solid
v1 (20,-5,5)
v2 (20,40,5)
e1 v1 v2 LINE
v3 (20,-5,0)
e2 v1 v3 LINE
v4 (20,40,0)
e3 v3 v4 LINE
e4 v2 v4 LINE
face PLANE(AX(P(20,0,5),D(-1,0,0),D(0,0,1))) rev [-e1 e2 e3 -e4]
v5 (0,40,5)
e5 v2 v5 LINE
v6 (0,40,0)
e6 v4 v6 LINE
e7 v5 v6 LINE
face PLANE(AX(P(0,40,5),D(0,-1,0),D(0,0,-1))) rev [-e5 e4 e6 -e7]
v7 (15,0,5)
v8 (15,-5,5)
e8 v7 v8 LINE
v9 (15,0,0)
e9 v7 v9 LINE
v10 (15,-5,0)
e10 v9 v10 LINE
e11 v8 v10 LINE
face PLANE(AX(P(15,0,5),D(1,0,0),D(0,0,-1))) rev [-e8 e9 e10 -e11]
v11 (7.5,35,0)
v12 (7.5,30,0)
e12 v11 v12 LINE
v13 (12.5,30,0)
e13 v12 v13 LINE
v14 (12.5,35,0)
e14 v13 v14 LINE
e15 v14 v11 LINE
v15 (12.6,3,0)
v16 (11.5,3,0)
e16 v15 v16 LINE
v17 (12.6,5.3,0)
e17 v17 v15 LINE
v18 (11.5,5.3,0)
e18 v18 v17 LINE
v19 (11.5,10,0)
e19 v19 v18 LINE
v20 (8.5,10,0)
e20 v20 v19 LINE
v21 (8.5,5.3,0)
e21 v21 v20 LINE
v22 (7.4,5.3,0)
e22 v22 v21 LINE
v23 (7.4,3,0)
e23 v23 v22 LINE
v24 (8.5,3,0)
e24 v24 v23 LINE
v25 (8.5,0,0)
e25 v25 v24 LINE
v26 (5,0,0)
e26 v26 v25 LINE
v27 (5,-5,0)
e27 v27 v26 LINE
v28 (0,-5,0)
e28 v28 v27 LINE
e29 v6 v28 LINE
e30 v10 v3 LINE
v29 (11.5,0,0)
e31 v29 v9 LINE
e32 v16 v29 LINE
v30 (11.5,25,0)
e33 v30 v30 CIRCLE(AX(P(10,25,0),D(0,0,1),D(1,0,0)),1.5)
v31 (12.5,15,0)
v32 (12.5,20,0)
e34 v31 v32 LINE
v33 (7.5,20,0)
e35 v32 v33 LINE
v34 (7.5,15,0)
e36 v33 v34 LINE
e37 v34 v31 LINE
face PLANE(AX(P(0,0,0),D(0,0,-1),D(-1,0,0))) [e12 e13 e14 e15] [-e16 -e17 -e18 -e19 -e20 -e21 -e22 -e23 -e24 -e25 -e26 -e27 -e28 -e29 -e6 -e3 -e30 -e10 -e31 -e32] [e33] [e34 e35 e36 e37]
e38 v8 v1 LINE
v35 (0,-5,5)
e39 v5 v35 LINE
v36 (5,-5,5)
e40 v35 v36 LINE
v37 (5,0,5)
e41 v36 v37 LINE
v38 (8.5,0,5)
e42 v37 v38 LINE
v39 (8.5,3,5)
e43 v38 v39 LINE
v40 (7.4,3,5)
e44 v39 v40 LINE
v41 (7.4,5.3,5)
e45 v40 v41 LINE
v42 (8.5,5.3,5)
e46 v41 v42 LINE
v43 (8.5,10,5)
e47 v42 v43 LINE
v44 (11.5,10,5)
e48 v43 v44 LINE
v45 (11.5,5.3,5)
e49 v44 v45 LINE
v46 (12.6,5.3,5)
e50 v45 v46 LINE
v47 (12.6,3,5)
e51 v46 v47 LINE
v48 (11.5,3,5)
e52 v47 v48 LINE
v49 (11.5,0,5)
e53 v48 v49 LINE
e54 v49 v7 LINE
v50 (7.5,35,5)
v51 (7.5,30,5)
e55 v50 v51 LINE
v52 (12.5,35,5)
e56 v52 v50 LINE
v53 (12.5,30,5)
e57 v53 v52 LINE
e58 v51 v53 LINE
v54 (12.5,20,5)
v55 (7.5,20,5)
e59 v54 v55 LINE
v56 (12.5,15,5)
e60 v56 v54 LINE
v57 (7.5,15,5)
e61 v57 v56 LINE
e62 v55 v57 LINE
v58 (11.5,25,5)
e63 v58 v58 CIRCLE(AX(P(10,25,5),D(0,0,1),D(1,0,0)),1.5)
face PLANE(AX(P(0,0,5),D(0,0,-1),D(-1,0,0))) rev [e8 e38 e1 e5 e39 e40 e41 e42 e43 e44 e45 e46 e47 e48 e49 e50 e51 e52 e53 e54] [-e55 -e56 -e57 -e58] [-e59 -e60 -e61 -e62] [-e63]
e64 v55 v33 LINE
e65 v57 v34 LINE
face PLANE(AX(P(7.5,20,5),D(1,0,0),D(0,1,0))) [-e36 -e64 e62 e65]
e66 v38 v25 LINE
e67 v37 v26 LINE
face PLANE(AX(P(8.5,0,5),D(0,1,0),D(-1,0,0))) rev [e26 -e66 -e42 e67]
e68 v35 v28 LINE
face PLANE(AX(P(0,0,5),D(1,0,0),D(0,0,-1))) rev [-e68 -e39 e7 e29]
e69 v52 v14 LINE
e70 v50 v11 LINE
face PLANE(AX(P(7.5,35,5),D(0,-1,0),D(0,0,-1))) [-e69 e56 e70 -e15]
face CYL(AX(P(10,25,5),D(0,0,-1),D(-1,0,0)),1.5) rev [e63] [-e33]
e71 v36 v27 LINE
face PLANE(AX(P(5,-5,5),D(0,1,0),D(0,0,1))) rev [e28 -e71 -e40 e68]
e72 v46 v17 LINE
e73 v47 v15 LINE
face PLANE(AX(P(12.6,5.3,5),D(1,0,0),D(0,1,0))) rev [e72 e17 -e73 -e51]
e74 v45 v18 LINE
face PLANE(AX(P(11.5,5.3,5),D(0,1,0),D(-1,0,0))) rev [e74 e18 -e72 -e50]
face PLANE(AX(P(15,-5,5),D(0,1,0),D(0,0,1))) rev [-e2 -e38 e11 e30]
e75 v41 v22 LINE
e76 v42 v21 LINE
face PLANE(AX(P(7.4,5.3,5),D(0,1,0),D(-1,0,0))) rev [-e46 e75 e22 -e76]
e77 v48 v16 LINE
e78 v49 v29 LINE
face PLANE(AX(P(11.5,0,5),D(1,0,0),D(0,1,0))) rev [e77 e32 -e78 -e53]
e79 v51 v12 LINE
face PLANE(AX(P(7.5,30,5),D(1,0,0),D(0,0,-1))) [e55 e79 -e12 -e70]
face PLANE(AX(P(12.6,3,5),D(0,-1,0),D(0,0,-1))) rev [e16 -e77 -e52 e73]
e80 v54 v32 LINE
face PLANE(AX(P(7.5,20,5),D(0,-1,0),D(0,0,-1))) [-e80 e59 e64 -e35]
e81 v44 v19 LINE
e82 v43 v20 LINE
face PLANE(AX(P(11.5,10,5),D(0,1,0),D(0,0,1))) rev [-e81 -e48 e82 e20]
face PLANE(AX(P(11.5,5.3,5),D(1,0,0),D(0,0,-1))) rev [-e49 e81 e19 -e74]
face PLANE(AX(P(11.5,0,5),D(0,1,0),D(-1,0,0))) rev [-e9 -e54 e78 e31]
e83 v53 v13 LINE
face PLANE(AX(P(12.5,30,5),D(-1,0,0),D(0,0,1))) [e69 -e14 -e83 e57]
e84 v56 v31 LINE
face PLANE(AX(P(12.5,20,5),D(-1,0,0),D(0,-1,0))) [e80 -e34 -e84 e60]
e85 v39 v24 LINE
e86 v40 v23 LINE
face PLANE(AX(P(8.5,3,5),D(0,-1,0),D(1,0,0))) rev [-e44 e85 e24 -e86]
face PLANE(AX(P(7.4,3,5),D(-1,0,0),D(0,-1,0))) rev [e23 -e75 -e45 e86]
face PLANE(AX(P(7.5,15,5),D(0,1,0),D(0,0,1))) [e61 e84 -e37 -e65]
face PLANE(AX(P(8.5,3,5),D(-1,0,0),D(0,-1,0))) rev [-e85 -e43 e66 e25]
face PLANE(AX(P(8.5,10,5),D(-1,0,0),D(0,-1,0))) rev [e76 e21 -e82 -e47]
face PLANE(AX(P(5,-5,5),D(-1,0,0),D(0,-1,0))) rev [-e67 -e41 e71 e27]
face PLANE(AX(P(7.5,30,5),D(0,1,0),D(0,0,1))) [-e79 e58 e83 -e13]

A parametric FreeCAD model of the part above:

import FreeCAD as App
import Part
import Sketcher

V = App.Vector

doc = App.newDocument("Part")
body = doc.addObject("PartDesign::Body", "Body")

sketch1 = doc.addObject("Sketcher::SketchObject", "Sketch")
body.addObject(sketch1)
sketch1.AttachmentSupport = (doc.XY_Plane, [""])
sketch1.MapMode = "FlatFace"
sketch1.addGeometry([
    Part.LineSegment(V(0, 40, 0), V(0, -5, 0)),
    Part.LineSegment(V(0, -5, 0), V(5, -5, 0)),
    Part.LineSegment(V(5, -5, 0), V(5, 0, 0)),
    Part.LineSegment(V(5, 0, 0), V(8.5, 0, 0)),
    Part.LineSegment(V(8.5, 0, 0), V(8.5, 3, 0)),
    Part.LineSegment(V(8.5, 3, 0), V(7.4, 3, 0)),
    Part.LineSegment(V(7.4, 3, 0), V(7.4, 5.3, 0)),
    Part.LineSegment(V(7.4, 5.3, 0), V(8.5, 5.3, 0)),
    Part.LineSegment(V(8.5, 5.3, 0), V(8.5, 10, 0)),
    Part.LineSegment(V(8.5, 10, 0), V(11.5, 10, 0)),
    Part.LineSegment(V(11.5, 10, 0), V(11.5, 5.3, 0)),
    Part.LineSegment(V(11.5, 5.3, 0), V(12.6, 5.3, 0)),
    Part.LineSegment(V(12.6, 5.3, 0), V(12.6, 3, 0)),
    Part.LineSegment(V(12.6, 3, 0), V(11.5, 3, 0)),
    Part.LineSegment(V(11.5, 3, 0), V(11.5, 0, 0)),
    Part.LineSegment(V(11.5, 0, 0), V(15, 0, 0)),
    Part.LineSegment(V(15, 0, 0), V(15, -5, 0)),
    Part.LineSegment(V(15, -5, 0), V(20, -5, 0)),
    Part.LineSegment(V(20, -5, 0), V(20, 40, 0)),
    Part.LineSegment(V(20, 40, 0), V(0, 40, 0)),
    Part.LineSegment(V(7.5, 15, 0), V(7.5, 20, 0)),
    Part.LineSegment(V(7.5, 20, 0), V(12.5, 20, 0)),
    Part.LineSegment(V(12.5, 20, 0), V(12.5, 15, 0)),
    Part.LineSegment(V(12.5, 15, 0), V(7.5, 15, 0)),
    Part.Circle(V(10, 25, 0), V(0, 0, 1), 1.5),
    Part.LineSegment(V(7.5, 30, 0), V(7.5, 35, 0)),
    Part.LineSegment(V(7.5, 35, 0), V(12.5, 35, 0)),
    Part.LineSegment(V(12.5, 35, 0), V(12.5, 30, 0)),
    Part.LineSegment(V(12.5, 30, 0), V(7.5, 30, 0)),
], False)
sketch1.addConstraint([
    Sketcher.Constraint("Coincident", 0, 2, 1, 1),
    Sketcher.Constraint("Coincident", 1, 2, 2, 1),
    Sketcher.Constraint("Coincident", 2, 2, 3, 1),
    Sketcher.Constraint("Coincident", 3, 2, 4, 1),
    Sketcher.Constraint("Coincident", 4, 2, 5, 1),
    Sketcher.Constraint("Coincident", 5, 2, 6, 1),
    Sketcher.Constraint("Coincident", 6, 2, 7, 1),
    Sketcher.Constraint("Coincident", 7, 2, 8, 1),
    Sketcher.Constraint("Coincident", 8, 2, 9, 1),
    Sketcher.Constraint("Coincident", 9, 2, 10, 1),
    Sketcher.Constraint("Coincident", 10, 2, 11, 1),
    Sketcher.Constraint("Coincident", 11, 2, 12, 1),
    Sketcher.Constraint("Coincident", 12, 2, 13, 1),
    Sketcher.Constraint("Coincident", 13, 2, 14, 1),
    Sketcher.Constraint("Coincident", 14, 2, 15, 1),
    Sketcher.Constraint("Coincident", 15, 2, 16, 1),
    Sketcher.Constraint("Coincident", 16, 2, 17, 1),
    Sketcher.Constraint("Coincident", 17, 2, 18, 1),
    Sketcher.Constraint("Coincident", 18, 2, 19, 1),
    Sketcher.Constraint("Coincident", 19, 2, 0, 1),
    Sketcher.Constraint("Coincident", 20, 2, 21, 1),
    Sketcher.Constraint("Coincident", 21, 2, 22, 1),
    Sketcher.Constraint("Coincident", 22, 2, 23, 1),
    Sketcher.Constraint("Coincident", 23, 2, 20, 1),
    Sketcher.Constraint("Coincident", 25, 2, 26, 1),
    Sketcher.Constraint("Coincident", 26, 2, 27, 1),
    Sketcher.Constraint("Coincident", 27, 2, 28, 1),
    Sketcher.Constraint("Coincident", 28, 2, 25, 1),
    Sketcher.Constraint("Vertical", 0),
    Sketcher.Constraint("Horizontal", 1),
    Sketcher.Constraint("Vertical", 2),
    Sketcher.Constraint("Horizontal", 3),
    Sketcher.Constraint("Vertical", 4),
    Sketcher.Constraint("Horizontal", 5),
    Sketcher.Constraint("Vertical", 6),
    Sketcher.Constraint("Horizontal", 7),
    Sketcher.Constraint("Vertical", 8),
    Sketcher.Constraint("Horizontal", 9),
    Sketcher.Constraint("Vertical", 10),
    Sketcher.Constraint("Horizontal", 11),
    Sketcher.Constraint("Vertical", 12),
    Sketcher.Constraint("Horizontal", 13),
    Sketcher.Constraint("Vertical", 14),
    Sketcher.Constraint("Horizontal", 15),
    Sketcher.Constraint("Vertical", 16),
    Sketcher.Constraint("Horizontal", 17),
    Sketcher.Constraint("Vertical", 18),
    Sketcher.Constraint("Horizontal", 19),
    Sketcher.Constraint("Vertical", 20),
    Sketcher.Constraint("Horizontal", 21),
    Sketcher.Constraint("Vertical", 22),
    Sketcher.Constraint("Horizontal", 23),
    Sketcher.Constraint("Vertical", 25),
    Sketcher.Constraint("Horizontal", 26),
    Sketcher.Constraint("Vertical", 27),
    Sketcher.Constraint("Horizontal", 28),
    Sketcher.Constraint("PointOnObject", 0, 2, -2),
    Sketcher.Constraint("PointOnObject", 2, 2, -1),
    Sketcher.Constraint("PointOnObject", 14, 2, -1),
    Sketcher.Constraint("Horizontal", 7, 2, 10, 2),
    Sketcher.Constraint("Horizontal", 5, 2, 12, 2),
    Sketcher.Constraint("Horizontal", 1, 2, 16, 2),
    Sketcher.Constraint("Vertical", 4, 2, 7, 2),
    Sketcher.Constraint("Vertical", 10, 2, 13, 2),
    Sketcher.Constraint("Vertical", 23, 2, 25, 2),
    Sketcher.Constraint("Vertical", 22, 2, 26, 2),
    Sketcher.Constraint("Equal", 7, 11),
    Sketcher.Constraint("Equal", 3, 15),
    Sketcher.Constraint("Equal", 1, 17),
    Sketcher.Constraint("Equal", 17, 21),
    Sketcher.Constraint("Equal", 28, 2),
    Sketcher.Constraint("Equal", 9, 4),
    Sketcher.Constraint("Equal", 16, 20),
    Sketcher.Constraint("Equal", 22, 25),
    Sketcher.Constraint("Diameter", 24, 3.0),
    Sketcher.Constraint("DistanceX", 1, 1, 1, 2, 5.0),
    Sketcher.Constraint("DistanceX", 9, 1, 9, 2, 3.0),
    Sketcher.Constraint("DistanceX", 19, 2, 19, 1, 20.0),
    Sketcher.Constraint("DistanceY", 0, 2, 0, 1, 45.0),
    Sketcher.Constraint("DistanceX", 5, 2, 5, 1, 1.1),
    Sketcher.Constraint("DistanceY", 6, 1, 6, 2, 2.3),
    Sketcher.Constraint("DistanceY", 8, 1, 8, 2, 4.7),
    Sketcher.Constraint("DistanceX", -1, 1, 24, 3, 10.0),
    Sketcher.Constraint("DistanceY", -1, 1, 24, 3, 25.0),
    Sketcher.Constraint("DistanceY", -1, 1, 20, 2, 20.0),
    Sketcher.Constraint("DistanceY", -1, 1, 25, 2, 35.0),
    Sketcher.Constraint("DistanceX", 20, 2, 8, 2, 1.0),
])
pad1 = doc.addObject("PartDesign::Pad", "Pad")
body.addObject(pad1)
pad1.Profile = sketch1
pad1.Length = 5

doc.recompute()
